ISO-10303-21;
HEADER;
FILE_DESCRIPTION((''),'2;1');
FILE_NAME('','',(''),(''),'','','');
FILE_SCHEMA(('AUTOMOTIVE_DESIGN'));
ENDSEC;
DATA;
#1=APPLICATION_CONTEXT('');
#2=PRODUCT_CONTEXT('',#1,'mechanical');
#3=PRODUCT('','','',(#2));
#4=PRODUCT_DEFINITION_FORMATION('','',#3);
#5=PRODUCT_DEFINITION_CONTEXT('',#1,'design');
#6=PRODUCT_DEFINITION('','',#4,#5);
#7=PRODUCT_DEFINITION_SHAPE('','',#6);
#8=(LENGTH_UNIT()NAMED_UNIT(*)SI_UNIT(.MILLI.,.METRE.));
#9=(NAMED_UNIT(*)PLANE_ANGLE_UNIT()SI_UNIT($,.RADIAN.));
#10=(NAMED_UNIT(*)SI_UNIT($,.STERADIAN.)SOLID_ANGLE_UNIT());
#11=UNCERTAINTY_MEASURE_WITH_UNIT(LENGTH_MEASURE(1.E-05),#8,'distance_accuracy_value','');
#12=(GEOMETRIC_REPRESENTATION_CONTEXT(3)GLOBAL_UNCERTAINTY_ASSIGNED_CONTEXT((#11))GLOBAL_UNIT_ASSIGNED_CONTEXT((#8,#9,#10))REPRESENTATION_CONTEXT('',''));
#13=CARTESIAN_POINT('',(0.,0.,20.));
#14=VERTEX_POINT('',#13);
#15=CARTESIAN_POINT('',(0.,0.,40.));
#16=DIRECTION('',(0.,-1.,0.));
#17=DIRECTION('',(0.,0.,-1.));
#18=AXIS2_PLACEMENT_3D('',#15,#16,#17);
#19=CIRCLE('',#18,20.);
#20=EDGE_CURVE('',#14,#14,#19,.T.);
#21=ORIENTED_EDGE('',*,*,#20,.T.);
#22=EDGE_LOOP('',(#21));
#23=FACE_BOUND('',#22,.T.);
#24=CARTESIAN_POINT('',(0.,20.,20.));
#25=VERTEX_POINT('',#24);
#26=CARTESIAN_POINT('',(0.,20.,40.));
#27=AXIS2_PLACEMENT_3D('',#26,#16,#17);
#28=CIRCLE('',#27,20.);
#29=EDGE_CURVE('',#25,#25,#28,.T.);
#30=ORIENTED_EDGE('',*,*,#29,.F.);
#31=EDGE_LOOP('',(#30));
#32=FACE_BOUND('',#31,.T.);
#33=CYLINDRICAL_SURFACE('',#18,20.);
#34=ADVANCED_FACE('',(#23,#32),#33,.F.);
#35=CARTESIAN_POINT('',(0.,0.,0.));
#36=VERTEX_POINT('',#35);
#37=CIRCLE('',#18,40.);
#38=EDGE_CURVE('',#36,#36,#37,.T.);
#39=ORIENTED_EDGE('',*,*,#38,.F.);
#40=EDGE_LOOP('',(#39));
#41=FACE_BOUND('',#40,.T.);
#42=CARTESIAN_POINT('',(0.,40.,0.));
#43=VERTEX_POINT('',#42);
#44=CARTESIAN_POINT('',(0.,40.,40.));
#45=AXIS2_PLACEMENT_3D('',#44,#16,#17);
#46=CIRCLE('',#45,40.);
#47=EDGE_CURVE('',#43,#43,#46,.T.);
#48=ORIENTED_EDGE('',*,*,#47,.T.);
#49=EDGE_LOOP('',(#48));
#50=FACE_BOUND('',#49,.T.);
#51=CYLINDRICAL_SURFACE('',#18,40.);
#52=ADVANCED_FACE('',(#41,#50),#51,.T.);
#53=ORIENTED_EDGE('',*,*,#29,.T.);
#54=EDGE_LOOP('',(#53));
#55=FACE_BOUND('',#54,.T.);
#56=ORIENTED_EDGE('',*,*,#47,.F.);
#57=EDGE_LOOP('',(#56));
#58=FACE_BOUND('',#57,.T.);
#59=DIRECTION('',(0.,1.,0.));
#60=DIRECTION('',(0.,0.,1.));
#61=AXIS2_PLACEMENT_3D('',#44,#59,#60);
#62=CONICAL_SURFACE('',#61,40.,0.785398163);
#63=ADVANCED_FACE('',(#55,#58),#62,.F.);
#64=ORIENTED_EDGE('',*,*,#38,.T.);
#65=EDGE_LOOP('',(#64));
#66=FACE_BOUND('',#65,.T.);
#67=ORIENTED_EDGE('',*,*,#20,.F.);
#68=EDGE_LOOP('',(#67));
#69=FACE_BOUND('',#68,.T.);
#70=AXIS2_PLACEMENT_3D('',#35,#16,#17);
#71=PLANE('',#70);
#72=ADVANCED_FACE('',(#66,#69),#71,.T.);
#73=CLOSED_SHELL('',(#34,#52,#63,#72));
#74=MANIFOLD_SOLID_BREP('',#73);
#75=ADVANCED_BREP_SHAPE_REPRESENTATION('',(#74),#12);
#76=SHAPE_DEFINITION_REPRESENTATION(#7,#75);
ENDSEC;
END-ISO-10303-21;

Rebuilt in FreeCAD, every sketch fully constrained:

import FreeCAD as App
import Part
import Sketcher
Q = App.Units.Quantity

doc = App.newDocument("Part")
params = doc.addObject("Spreadsheet::Sheet", "Params")
for row, (alias, value) in enumerate([
    ("sketch1_width", "40 mm"),
    ("sketch1_width2", "20 mm"),
    ("revolution_angle", "360 deg"),
], start=1):
    params.set(f"A{row}", alias)
    params.set(f"B{row}", "=" + value)
    params.setAlias(f"B{row}", alias)

body = doc.addObject("PartDesign::Body", "Body")

# Sketch on YZ plane
sketch1 = body.newObject("Sketcher::SketchObject", "Sketch")
sketch1.AttachmentSupport = (doc.getObject("YZ_Plane"), [""])
sketch1.MapMode = "FlatFace"
sketch1.addGeometry([
    Part.LineSegment(App.Vector(0, 0, 0), App.Vector(40, 0, 0)),
    Part.LineSegment(App.Vector(40, 0, 0), App.Vector(20, 20, 0)),
    Part.LineSegment(App.Vector(20, 20, 0), App.Vector(0, 20, 0)),
    Part.LineSegment(App.Vector(0, 20, 0), App.Vector(0, 0, 0)),
], False)
sketch1.addGeometry(Part.LineSegment(App.Vector(0, 40, 0), App.Vector(40, 40, 0)), True)  # axis
sketch1.addConstraint([
    Sketcher.Constraint("Coincident", 0, 2, 1, 1),
    Sketcher.Constraint("Coincident", 1, 2, 2, 1),
    Sketcher.Constraint("Coincident", 2, 2, 3, 1),
    Sketcher.Constraint("Coincident", 3, 2, 0, 1),
    Sketcher.Constraint("Horizontal", 0),
    Sketcher.Constraint("Horizontal", 2),
    Sketcher.Constraint("Vertical", 3),
    Sketcher.Constraint("Horizontal", 4),
    Sketcher.Constraint("Coincident", 3, 2, -1, 1),
    Sketcher.Constraint("PointOnObject", 4, 1, -2),
    Sketcher.Constraint("Vertical", 0, 2, 4, 2),
    Sketcher.Constraint("Equal", 2, 3),
    Sketcher.Constraint("DistanceX", 0, 1, 0, 2, Q("40 mm")),
    Sketcher.Constraint("DistanceX", 2, 2, 2, 1, Q("20 mm")),
    Sketcher.Constraint("DistanceY", -1, 1, 4, 1, Q("40 mm")),
])
sketch1.setExpression("Constraints[12]", "Params.sketch1_width")
sketch1.setExpression("Constraints[13]", "Params.sketch1_width2")
revolution = body.newObject("PartDesign::Revolution", "Revolution")
revolution.Profile = sketch1
revolution.ReferenceAxis = (sketch1, ["Axis0"])
revolution.setExpression("Angle", "Params.revolution_angle")

doc.recompute()
